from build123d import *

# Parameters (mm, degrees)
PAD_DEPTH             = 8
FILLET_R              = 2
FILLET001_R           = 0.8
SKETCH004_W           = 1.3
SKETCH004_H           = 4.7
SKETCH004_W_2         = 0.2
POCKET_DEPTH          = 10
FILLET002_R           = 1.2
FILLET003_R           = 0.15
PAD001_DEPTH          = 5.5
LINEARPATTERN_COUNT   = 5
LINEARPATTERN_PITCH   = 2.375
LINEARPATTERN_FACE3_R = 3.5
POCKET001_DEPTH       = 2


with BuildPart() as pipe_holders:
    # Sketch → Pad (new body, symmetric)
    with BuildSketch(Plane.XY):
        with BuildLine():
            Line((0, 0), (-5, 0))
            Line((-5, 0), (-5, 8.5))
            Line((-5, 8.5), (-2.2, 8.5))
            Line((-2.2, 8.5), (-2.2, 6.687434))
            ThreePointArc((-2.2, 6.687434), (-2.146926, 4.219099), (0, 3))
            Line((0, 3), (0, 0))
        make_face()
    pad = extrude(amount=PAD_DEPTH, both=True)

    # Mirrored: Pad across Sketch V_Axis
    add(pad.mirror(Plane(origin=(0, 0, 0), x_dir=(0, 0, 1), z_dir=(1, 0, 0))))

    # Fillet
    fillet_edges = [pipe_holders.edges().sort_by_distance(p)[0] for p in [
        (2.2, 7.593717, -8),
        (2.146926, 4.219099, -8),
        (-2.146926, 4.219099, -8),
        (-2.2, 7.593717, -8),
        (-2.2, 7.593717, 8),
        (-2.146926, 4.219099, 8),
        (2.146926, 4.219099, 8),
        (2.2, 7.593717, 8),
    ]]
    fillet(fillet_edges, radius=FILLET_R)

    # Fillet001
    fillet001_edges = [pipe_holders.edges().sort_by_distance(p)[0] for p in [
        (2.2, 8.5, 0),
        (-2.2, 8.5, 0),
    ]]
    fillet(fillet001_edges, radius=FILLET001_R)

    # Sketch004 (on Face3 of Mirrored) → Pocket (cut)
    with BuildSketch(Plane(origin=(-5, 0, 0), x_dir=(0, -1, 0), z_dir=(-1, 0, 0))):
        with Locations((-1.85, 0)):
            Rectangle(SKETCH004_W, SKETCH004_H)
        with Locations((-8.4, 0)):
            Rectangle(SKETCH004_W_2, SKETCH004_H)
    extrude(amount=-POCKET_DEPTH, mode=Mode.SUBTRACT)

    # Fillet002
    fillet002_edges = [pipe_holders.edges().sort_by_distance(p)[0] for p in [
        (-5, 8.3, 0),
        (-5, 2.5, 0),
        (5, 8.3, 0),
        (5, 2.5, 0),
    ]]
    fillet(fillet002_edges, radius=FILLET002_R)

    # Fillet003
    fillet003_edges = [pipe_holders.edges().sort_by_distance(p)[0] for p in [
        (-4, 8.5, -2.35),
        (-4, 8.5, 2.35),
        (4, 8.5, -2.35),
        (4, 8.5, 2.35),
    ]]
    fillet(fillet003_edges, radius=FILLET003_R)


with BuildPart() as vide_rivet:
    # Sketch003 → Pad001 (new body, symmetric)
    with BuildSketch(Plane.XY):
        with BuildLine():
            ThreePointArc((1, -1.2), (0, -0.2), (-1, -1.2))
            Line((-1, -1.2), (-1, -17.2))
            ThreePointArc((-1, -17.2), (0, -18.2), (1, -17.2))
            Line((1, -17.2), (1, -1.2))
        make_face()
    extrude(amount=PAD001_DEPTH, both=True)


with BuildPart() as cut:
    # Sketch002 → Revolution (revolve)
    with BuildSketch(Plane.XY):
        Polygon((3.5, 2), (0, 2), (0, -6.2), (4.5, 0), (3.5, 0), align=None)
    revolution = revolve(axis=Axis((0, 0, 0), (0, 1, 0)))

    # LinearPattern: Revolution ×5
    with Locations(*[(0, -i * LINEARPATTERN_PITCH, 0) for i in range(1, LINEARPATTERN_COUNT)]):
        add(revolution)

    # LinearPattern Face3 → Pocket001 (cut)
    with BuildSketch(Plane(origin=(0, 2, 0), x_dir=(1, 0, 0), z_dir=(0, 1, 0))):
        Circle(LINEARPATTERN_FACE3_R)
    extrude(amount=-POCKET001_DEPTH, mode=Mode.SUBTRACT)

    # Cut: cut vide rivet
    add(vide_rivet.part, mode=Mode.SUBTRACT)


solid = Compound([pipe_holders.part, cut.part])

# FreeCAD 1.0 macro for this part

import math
import FreeCAD as App
import Part
import Sketcher

V = App.Vector


def edges_at(feature, points):
    """Names of the edges that pass closest to the given points."""
    edges = feature.Shape.Edges
    near = lambda p: min(range(len(edges)), key=lambda i: edges[i].distToShape(Part.Vertex(*p))[0])
    return sorted({f"Edge{near(p) + 1}" for p in points})


def add_polygon(sketch, points):
    """Adds a closed chain of lines whose ends are joined by coincident constraints."""
    first, n = sketch.GeometryCount, len(points)
    for a, b in zip(points, points[1:] + points[:1]):
        sketch.addGeometry(Part.LineSegment(App.Vector(*a, 0), App.Vector(*b, 0)), False)
    for i in range(n):
        sketch.addConstraint(Sketcher.Constraint("Coincident", first + i, 2, first + (i + 1) % n, 1))

doc = App.newDocument("Part")
params = doc.addObject("Spreadsheet::Sheet", "Params")
for row, (alias, value) in enumerate([
    ("sketch1_radius", "2.5 mm"),
    ("sketch1_width", "5 mm"),
    ("sketch1_height", "3 mm"),
    ("sketch1_width2", "2.8 mm"),
    ("sketch1_height2", "8.5 mm"),
    ("pad1_length", "16 mm"),
    ("fillet_radius", "2 mm"),
    ("fillet2_radius", "0.8 mm"),
    ("sketch2_width", "1.3 mm"),
    ("sketch2_width2", "0.2 mm"),
    ("sketch2_height", "4.7 mm"),
    ("pocket1_length", "10 mm"),
    ("fillet3_radius", "1.2 mm"),
    ("fillet4_radius", "0.15 mm"),
    ("sketch3_radius", "1 mm"),
    ("sketch3_height", "16 mm"),
    ("pad2_length", "11 mm"),
    ("sketch4_width", "1 mm"),
    ("sketch4_height", "2 mm"),
    ("sketch4_width2", "3.5 mm"),
    ("sketch4_height2", "8.2 mm"),
    ("revolution_angle", "360 deg"),
    ("linearpattern_pitch", "2.375 mm"),
    ("sketch5_diameter", "7 mm"),
    ("pocket2_length", "2 mm"),
], start=1):
    params.set(f"A{row}", alias)
    params.set(f"B{row}", "=" + value)
    params.setAlias(f"B{row}", alias)

body = doc.addObject("PartDesign::Body", "Body")

# Sketch on XY plane
sketch1 = body.newObject("Sketcher::SketchObject", "Sketch")
sketch1.AttachmentSupport = (doc.getObject("XY_Plane"), [""])
sketch1.MapMode = "FlatFace"
sketch1.addGeometry([
    Part.LineSegment(V(-5, 0, 0), V(0, 0, 0)),  # 0
    Part.LineSegment(V(0, 0, 0), V(0, 3, 0)),  # 1
    Part.ArcOfCircle(Part.Circle(V(0, 5.5, 0), V(0, 0, 1), 2.5), math.radians(152), math.radians(270)),  # 2
    Part.LineSegment(V(-2.2, 6.7, 0), V(-2.2, 8.5, 0)),  # 3
    Part.LineSegment(V(-2.2, 8.5, 0), V(-5, 8.5, 0)),  # 4
    Part.LineSegment(V(-5, 8.5, 0), V(-5, 0, 0)),  # 5
], False)
sketch1.addConstraint([
    Sketcher.Constraint("Coincident", 0, 2, 1, 1),
    Sketcher.Constraint("Coincident", 1, 2, 2, 2),
    Sketcher.Constraint("Coincident", 2, 1, 3, 1),
    Sketcher.Constraint("Coincident", 3, 2, 4, 1),
    Sketcher.Constraint("Coincident", 4, 2, 5, 1),
    Sketcher.Constraint("Coincident", 5, 2, 0, 1),
    Sketcher.Constraint("Horizontal", 0),
    Sketcher.Constraint("Vertical", 1),
    Sketcher.Constraint("Vertical", 3),
    Sketcher.Constraint("Horizontal", 4),
    Sketcher.Constraint("Vertical", 5),
    Sketcher.Constraint("Coincident", 0, 2, -1, 1),
    Sketcher.Constraint("PointOnObject", 2, 3, -2),
    Sketcher.Constraint("Radius", 2, 2.5),
    Sketcher.Constraint("DistanceX", 0, 1, 0, 2, 5.0),
    Sketcher.Constraint("DistanceY", 1, 1, 1, 2, 3.0),
    Sketcher.Constraint("DistanceX", 4, 2, 4, 1, 2.8),
    Sketcher.Constraint("DistanceY", 5, 2, 5, 1, 8.5),
])
sketch1.setExpression("Constraints[13]", "Params.sketch1_radius")
sketch1.setExpression("Constraints[14]", "Params.sketch1_width")
sketch1.setExpression("Constraints[15]", "Params.sketch1_height")
sketch1.setExpression("Constraints[16]", "Params.sketch1_width2")
sketch1.setExpression("Constraints[17]", "Params.sketch1_height2")
pad1 = body.newObject("PartDesign::Pad", "Pad")
pad1.Profile = sketch1
pad1.setExpression("Length", "Params.pad1_length")
pad1.Midplane = True
doc.recompute()

mirrored = body.newObject("PartDesign::Mirrored", "Mirrored")
mirrored.Originals = [pad1]
mirrored.MirrorPlane = (doc.getObject("YZ_Plane"), [""])
body.Tip = mirrored
doc.recompute()

fillet = body.newObject("PartDesign::Fillet", "Fillet")
fillet.Base = (mirrored, edges_at(mirrored, [
    (2.2, 7.594, -8),
    (2.147, 4.219, -8),
    (-2.147, 4.219, -8),
    (-2.2, 7.594, -8),
    (-2.2, 7.594, 8),
    (-2.147, 4.219, 8),
    (2.147, 4.219, 8),
    (2.2, 7.594, 8),
]))
fillet.setExpression("Radius", "Params.fillet_radius")
doc.recompute()

fillet2 = body.newObject("PartDesign::Fillet", "Fillet001")
fillet2.Base = (fillet, edges_at(fillet, [(2.2, 8.5, 0), (-2.2, 8.5, 0)]))
fillet2.setExpression("Radius", "Params.fillet2_radius")

# Sketch on YZ plane
sketch2 = body.newObject("Sketcher::SketchObject", "Sketch001")
sketch2.AttachmentSupport = (doc.getObject("YZ_Plane"), [""])
sketch2.MapMode = "FlatFace"
sketch2.AttachmentOffset = App.Placement(V(0, 0, -5), App.Rotation())
add_polygon(sketch2, [(2.5, 2.35), (2.5, -2.35), (1.2, -2.35), (1.2, 2.35)])  # lines 0-3
add_polygon(sketch2, [(8.5, 2.35), (8.5, -2.35), (8.3, -2.35), (8.3, 2.35)])  # lines 4-7
sketch2.addConstraint([
    Sketcher.Constraint("Vertical", 0),
    Sketcher.Constraint("Horizontal", 1),
    Sketcher.Constraint("Vertical", 2),
    Sketcher.Constraint("Horizontal", 3),
    Sketcher.Constraint("Vertical", 4),
    Sketcher.Constraint("Horizontal", 5),
    Sketcher.Constraint("Vertical", 6),
    Sketcher.Constraint("Horizontal", 7),
    Sketcher.Constraint("Horizontal", 1, 2, 4, 2),
    Sketcher.Constraint("Horizontal", 3, 2, 6, 2),
    Sketcher.Constraint("DistanceX", 1, 2, 1, 1, 1.3),
    Sketcher.Constraint("DistanceX", 5, 2, 5, 1, 0.2),
    Sketcher.Constraint("DistanceY", 0, 2, 0, 1, 4.7),
    Sketcher.Constraint("DistanceX", 0, 2, 4, 2, 6.0),
    Sketcher.Constraint("DistanceX", -1, 1, 0, 2, 2.5),
    Sketcher.Constraint("DistanceY", 0, 2, -1, 1, 2.35),
])
sketch2.setExpression("Constraints[18]", "Params.sketch2_width")
sketch2.setExpression("Constraints[19]", "Params.sketch2_width2")
sketch2.setExpression("Constraints[20]", "Params.sketch2_height")
pocket1 = body.newObject("PartDesign::Pocket", "Pocket")
pocket1.Profile = sketch2
pocket1.setExpression("Length", "Params.pocket1_length")
pocket1.Reversed = True
doc.recompute()

fillet3 = body.newObject("PartDesign::Fillet", "Fillet002")
fillet3.Base = (pocket1, edges_at(pocket1, [
    (-5, 8.3, 0),
    (-5, 2.5, 0),
    (5, 8.3, 0),
    (5, 2.5, 0),
]))
fillet3.setExpression("Radius", "Params.fillet3_radius")
doc.recompute()

fillet4 = body.newObject("PartDesign::Fillet", "Fillet003")
fillet4.Base = (fillet3, edges_at(fillet3, [
    (-4, 8.5, -2.35),
    (-4, 8.5, 2.35),
    (4, 8.5, -2.35),
    (4, 8.5, 2.35),
]))
fillet4.setExpression("Radius", "Params.fillet4_radius")
body2 = doc.addObject("PartDesign::Body", "Body001")

# Sketch on XY plane
sketch3 = body2.newObject("Sketcher::SketchObject", "Sketch002")
sketch3.AttachmentSupport = (doc.getObject("XY_Plane001"), [""])
sketch3.MapMode = "FlatFace"
sketch3.addGeometry([
    Part.ArcOfCircle(Part.Circle(V(0, -1.2, 0), V(0, 0, 1), 1), math.radians(0), math.radians(180)),
    Part.LineSegment(V(-1, -1.2, 0), V(-1, -17.2, 0)),
    Part.ArcOfCircle(Part.Circle(V(0, -17.2, 0), V(0, 0, 1), 1), math.radians(180), math.radians(360)),
    Part.LineSegment(V(1, -17.2, 0), V(1, -1.2, 0)),
], False)
sketch3.addConstraint([
    Sketcher.Constraint("Tangent", 0, 2, 1, 1),
    Sketcher.Constraint("Tangent", 1, 2, 2, 1),
    Sketcher.Constraint("Tangent", 2, 2, 3, 1),
    Sketcher.Constraint("Tangent", 3, 2, 0, 1),
    Sketcher.Constraint("Vertical", 1),
    Sketcher.Constraint("Vertical", 3),
    Sketcher.Constraint("PointOnObject", 0, 3, -2),
    Sketcher.Constraint("Radius", 0, 1.0),
    Sketcher.Constraint("DistanceY", 1, 2, 1, 1, 16.0),
    Sketcher.Constraint("DistanceY", 0, 3, -1, 1, 1.2),
])
sketch3.setExpression("Constraints[7]", "Params.sketch3_radius")
sketch3.setExpression("Constraints[8]", "Params.sketch3_height")
pad2 = body2.newObject("PartDesign::Pad", "Pad001")
pad2.Profile = sketch3
pad2.setExpression("Length", "Params.pad2_length")
pad2.Midplane = True
body3 = doc.addObject("PartDesign::Body", "Body002")

# Sketch on XY plane
sketch4 = body3.newObject("Sketcher::SketchObject", "Sketch003")
sketch4.AttachmentSupport = (doc.getObject("XY_Plane002"), [""])
sketch4.MapMode = "FlatFace"
add_polygon(sketch4, [(3.5, 2), (0, 2), (0, -6.2), (4.5, 0), (3.5, 0)])  # lines 0-4
sketch4.addConstraint([
    Sketcher.Constraint("Horizontal", 0),
    Sketcher.Constraint("Vertical", 1),
    Sketcher.Constraint("Horizontal", 3),
    Sketcher.Constraint("Vertical", 4),
    Sketcher.Constraint("PointOnObject", 0, 2, -2),
    Sketcher.Constraint("PointOnObject", 2, 2, -1),
    Sketcher.Constraint("DistanceX", 3, 2, 3, 1, 1.0),
    Sketcher.Constraint("DistanceY", 4, 1, 4, 2, 2.0),
    Sketcher.Constraint("DistanceX", 0, 2, 0, 1, 3.5),
    Sketcher.Constraint("DistanceY", 1, 2, 1, 1, 8.2),
])
sketch4.setExpression("Constraints[11]", "Params.sketch4_width")
sketch4.setExpression("Constraints[12]", "Params.sketch4_height")
sketch4.setExpression("Constraints[13]", "Params.sketch4_width2")
sketch4.setExpression("Constraints[14]", "Params.sketch4_height2")
revolution = body3.newObject("PartDesign::Revolution", "Revolution")
revolution.Profile = sketch4
revolution.ReferenceAxis = (sketch4, ["V_Axis"])
revolution.setExpression("Angle", "Params.revolution_angle")
doc.recompute()

linearpattern = body3.newObject("PartDesign::LinearPattern", "LinearPattern")
linearpattern.Originals = [revolution]
linearpattern.Direction = (doc.getObject("Y_Axis002"), [""])
linearpattern.Mode = "offset"
linearpattern.setExpression("Offset", "Params.linearpattern_pitch")
linearpattern.Occurrences = 5
linearpattern.Reversed = True
body3.Tip = linearpattern

# Sketch on XZ plane
sketch5 = body3.newObject("Sketcher::SketchObject", "Sketch004")
sketch5.AttachmentSupport = (doc.getObject("XZ_Plane002"), [""])
sketch5.MapMode = "FlatFace"
sketch5.AttachmentOffset = App.Placement(V(0, 0, -2), App.Rotation())
sketch5.addGeometry(Part.Circle(V(0, 0, 0), V(0, 0, 1), 3.5), False)
sketch5.addConstraint([
    Sketcher.Constraint("Coincident", 0, 3, -1, 1),
    Sketcher.Constraint("Diameter", 0, 7.0),
])
sketch5.setExpression("Constraints[1]", "Params.sketch5_diameter")
pocket2 = body3.newObject("PartDesign::Pocket", "Pocket001")
pocket2.Profile = sketch5
pocket2.setExpression("Length", "Params.pocket2_length")
pocket2.Reversed = True
doc.recompute()

boolean = body3.newObject("PartDesign::Boolean", "Boolean")
boolean.Type = "Cut"
boolean.addObjects([body2])

doc.recompute()
